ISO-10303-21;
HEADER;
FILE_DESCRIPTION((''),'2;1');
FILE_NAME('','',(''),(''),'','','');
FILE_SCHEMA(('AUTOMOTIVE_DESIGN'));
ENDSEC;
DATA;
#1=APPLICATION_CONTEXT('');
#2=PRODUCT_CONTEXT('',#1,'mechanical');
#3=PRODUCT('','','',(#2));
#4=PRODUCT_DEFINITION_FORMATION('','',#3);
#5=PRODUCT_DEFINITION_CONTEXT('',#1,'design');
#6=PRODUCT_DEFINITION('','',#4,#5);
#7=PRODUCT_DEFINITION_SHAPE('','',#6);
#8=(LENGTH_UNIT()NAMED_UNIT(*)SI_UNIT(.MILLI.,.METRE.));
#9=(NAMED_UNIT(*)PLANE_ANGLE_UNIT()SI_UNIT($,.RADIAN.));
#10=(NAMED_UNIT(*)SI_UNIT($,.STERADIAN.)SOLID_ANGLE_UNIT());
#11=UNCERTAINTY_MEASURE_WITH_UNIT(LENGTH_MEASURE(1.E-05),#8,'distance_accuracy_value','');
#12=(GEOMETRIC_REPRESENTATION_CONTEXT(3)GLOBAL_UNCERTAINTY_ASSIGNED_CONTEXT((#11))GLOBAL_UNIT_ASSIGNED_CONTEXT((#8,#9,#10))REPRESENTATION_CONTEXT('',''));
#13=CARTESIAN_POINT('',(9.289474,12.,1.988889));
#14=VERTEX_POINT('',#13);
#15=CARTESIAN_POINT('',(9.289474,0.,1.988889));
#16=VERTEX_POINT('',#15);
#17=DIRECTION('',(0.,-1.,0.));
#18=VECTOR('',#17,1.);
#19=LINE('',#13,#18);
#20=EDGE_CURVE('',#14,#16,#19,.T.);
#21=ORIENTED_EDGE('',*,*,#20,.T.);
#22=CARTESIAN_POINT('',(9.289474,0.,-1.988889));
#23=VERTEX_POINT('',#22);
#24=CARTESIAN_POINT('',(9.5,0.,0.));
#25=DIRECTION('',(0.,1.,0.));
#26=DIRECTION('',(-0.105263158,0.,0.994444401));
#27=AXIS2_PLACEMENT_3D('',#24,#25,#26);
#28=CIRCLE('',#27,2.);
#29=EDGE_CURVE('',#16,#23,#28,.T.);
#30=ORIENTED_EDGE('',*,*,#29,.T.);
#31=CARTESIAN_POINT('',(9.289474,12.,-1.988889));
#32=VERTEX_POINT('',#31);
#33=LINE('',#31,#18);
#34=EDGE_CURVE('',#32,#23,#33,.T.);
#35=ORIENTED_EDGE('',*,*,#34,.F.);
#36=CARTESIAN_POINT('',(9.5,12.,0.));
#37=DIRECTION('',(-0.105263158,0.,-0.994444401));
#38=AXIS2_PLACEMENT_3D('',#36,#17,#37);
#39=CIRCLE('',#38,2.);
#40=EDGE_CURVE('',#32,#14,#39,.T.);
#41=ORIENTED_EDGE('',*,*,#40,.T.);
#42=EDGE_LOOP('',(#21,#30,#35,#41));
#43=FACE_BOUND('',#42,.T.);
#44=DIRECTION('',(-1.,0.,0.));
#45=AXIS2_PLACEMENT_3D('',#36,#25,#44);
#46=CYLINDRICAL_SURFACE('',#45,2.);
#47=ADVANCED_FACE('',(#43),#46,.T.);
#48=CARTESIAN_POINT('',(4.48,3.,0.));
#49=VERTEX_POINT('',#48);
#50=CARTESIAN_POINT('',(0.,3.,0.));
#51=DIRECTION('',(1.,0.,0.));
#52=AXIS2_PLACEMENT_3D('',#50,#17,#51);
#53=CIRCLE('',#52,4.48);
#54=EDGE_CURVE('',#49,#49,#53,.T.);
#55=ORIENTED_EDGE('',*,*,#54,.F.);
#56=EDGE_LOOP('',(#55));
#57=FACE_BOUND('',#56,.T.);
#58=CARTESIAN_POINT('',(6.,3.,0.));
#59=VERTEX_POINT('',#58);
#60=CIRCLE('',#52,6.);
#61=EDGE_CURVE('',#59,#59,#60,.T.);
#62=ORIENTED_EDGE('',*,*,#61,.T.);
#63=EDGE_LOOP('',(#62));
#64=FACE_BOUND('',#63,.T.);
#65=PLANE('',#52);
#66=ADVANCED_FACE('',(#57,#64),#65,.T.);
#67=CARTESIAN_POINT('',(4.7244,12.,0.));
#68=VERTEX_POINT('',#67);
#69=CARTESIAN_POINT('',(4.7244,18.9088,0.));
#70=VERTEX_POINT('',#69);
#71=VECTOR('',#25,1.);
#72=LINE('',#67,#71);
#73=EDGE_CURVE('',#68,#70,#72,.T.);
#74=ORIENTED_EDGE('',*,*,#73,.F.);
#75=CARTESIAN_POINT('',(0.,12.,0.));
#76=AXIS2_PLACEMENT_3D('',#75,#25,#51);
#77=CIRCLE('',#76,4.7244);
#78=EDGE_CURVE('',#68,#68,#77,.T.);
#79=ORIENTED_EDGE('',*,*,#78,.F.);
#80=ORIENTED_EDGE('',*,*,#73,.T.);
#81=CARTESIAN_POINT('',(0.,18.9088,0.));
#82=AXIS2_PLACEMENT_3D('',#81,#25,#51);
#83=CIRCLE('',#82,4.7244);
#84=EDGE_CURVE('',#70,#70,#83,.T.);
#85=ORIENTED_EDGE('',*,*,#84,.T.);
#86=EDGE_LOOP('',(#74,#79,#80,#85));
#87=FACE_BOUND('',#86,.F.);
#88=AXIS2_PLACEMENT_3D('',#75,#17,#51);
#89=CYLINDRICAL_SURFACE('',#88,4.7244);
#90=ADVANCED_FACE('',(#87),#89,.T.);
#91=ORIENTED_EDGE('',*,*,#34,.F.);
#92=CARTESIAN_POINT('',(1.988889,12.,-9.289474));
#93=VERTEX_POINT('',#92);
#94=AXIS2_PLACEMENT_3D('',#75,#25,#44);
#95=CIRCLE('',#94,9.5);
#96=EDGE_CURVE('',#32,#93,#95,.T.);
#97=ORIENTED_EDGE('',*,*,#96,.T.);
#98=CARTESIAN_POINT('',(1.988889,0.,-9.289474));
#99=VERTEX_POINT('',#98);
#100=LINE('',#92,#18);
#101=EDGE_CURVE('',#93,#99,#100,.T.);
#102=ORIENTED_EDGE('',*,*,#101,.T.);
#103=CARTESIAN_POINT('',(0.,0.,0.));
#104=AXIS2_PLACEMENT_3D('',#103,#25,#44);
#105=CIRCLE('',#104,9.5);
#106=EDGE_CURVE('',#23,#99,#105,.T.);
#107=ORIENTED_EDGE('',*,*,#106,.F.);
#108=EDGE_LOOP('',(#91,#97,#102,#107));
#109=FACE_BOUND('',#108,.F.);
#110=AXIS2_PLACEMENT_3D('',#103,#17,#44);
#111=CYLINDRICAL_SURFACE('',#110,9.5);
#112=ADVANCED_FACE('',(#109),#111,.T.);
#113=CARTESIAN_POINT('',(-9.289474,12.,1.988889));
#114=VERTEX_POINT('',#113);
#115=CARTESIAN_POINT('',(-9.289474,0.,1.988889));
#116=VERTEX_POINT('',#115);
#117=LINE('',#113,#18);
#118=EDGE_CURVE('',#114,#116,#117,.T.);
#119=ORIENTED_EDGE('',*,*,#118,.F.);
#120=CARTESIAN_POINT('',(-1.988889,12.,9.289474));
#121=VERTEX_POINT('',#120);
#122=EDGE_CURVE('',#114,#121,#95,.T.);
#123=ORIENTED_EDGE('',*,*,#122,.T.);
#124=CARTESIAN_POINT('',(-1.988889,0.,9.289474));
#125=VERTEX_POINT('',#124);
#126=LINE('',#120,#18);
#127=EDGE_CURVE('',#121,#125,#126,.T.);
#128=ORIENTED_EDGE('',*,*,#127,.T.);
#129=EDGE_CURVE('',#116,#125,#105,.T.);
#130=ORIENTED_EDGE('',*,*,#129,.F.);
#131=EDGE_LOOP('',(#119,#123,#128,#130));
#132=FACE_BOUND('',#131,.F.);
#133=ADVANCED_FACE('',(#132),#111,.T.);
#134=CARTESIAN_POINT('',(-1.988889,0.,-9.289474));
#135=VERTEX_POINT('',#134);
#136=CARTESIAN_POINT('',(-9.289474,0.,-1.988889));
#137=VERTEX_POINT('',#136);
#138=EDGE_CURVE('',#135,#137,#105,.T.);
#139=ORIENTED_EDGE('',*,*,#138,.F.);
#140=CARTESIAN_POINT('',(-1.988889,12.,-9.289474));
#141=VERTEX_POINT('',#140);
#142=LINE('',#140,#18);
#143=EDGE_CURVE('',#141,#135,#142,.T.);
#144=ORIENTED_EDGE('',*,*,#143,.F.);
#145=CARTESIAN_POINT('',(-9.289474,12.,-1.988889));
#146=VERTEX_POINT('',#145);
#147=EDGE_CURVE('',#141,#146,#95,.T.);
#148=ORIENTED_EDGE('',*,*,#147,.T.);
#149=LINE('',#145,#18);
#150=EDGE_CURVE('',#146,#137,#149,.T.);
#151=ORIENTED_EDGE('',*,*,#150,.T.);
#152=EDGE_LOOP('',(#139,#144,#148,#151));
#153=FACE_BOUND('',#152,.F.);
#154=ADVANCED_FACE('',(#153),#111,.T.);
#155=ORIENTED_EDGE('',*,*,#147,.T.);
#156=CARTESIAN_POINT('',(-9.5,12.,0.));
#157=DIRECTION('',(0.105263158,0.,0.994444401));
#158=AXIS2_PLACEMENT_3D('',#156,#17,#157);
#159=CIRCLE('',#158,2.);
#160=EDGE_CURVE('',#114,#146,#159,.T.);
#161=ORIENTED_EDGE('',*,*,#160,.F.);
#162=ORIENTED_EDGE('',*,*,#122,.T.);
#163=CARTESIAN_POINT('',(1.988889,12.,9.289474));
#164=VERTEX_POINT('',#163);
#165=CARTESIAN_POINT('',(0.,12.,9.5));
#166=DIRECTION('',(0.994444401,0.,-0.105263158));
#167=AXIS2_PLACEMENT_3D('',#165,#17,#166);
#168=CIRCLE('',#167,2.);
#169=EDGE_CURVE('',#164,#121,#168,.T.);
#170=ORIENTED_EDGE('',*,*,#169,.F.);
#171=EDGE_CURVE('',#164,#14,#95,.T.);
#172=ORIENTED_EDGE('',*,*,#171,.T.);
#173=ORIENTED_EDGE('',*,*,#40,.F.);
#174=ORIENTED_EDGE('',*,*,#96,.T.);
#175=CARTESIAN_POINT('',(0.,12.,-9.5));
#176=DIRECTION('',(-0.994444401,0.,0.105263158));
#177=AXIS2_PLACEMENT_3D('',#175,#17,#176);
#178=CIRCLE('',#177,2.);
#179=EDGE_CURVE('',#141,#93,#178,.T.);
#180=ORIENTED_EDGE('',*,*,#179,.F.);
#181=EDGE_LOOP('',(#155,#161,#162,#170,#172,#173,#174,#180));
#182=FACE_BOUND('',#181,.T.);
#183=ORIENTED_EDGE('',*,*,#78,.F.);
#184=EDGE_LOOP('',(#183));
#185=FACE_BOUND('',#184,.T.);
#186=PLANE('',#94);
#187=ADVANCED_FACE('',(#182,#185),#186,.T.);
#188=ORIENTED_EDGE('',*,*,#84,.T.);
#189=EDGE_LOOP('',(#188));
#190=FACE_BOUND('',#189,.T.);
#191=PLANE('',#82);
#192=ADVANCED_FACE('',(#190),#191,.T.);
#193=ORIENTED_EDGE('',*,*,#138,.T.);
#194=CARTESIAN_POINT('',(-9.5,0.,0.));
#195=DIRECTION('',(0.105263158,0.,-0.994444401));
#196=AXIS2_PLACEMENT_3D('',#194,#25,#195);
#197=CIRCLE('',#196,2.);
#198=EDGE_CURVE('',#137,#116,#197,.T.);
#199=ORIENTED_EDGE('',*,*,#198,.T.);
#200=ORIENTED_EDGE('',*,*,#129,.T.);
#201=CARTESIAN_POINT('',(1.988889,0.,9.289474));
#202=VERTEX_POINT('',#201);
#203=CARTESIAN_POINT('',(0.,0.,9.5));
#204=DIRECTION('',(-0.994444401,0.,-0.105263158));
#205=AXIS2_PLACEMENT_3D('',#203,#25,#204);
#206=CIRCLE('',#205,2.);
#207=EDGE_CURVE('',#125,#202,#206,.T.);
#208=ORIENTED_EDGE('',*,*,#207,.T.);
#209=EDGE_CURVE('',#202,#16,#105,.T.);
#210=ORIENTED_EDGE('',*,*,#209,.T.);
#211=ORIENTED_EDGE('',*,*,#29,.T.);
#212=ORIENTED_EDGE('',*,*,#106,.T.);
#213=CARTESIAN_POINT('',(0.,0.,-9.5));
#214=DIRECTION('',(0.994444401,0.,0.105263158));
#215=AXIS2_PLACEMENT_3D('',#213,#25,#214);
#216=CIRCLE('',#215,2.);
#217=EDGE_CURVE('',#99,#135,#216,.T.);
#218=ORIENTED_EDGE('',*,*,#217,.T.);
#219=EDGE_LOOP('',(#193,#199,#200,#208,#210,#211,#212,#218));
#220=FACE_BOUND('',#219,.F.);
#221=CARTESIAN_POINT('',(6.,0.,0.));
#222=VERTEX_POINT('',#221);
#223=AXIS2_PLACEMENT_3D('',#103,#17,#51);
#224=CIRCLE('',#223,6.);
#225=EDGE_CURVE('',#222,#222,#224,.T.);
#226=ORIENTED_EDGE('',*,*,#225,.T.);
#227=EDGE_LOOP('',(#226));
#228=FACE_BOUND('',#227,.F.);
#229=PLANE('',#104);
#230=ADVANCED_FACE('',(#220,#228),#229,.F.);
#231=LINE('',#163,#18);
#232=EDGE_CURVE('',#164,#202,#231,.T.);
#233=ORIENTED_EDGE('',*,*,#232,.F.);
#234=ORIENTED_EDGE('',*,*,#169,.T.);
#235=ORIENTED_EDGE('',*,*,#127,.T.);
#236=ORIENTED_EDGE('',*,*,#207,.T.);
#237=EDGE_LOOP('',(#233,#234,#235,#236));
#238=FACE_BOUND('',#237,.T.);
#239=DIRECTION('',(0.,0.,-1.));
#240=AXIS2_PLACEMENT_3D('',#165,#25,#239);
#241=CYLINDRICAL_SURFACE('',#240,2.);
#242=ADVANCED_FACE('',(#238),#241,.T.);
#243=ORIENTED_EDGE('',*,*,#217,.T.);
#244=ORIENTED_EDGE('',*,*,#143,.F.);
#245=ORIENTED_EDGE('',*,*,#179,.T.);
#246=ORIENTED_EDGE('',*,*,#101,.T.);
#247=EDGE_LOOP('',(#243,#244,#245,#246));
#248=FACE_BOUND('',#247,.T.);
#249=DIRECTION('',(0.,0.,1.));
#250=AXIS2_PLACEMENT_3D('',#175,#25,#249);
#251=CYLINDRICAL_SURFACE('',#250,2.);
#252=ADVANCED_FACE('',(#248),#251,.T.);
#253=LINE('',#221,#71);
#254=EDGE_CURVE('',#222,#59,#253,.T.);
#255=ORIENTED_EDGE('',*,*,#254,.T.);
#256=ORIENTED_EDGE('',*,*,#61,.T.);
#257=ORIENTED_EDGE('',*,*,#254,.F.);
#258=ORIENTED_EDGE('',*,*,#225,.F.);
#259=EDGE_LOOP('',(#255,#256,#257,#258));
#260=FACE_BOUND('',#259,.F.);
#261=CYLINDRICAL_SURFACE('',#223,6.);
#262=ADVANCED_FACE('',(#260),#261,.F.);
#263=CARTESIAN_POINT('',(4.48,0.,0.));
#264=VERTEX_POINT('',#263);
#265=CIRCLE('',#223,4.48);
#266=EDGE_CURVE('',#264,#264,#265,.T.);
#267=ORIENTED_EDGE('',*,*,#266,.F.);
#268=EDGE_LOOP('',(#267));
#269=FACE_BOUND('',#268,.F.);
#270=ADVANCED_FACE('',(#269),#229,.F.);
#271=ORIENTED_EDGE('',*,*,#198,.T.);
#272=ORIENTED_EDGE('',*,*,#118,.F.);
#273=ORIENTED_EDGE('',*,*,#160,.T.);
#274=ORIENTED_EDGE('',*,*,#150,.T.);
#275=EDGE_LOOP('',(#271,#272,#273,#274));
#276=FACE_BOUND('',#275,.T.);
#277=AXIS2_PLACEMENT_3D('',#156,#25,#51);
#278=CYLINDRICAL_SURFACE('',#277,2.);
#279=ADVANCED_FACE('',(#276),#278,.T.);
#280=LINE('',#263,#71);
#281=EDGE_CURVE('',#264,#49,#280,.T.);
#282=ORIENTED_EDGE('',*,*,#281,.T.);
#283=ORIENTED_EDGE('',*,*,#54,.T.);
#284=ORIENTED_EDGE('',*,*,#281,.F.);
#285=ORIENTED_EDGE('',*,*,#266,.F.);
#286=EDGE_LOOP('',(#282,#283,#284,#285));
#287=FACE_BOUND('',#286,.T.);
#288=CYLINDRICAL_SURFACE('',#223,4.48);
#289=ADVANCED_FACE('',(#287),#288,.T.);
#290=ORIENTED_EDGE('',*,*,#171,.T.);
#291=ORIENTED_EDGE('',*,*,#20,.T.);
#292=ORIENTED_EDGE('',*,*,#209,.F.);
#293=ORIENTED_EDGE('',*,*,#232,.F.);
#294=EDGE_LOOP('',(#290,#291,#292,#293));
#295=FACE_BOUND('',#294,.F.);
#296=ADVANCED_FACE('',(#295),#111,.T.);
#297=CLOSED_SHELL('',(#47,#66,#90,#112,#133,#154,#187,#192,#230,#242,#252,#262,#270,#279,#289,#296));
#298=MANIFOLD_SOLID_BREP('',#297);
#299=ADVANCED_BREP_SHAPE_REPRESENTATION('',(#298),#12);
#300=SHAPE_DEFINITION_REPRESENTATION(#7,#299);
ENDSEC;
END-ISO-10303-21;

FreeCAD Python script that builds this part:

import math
import FreeCAD as App
import Part
import Sketcher
from FreeCAD import Vector

doc = App.newDocument("Part")
body = doc.addObject("PartDesign::Body", "Body")

# Sketch on XZ plane
sketch1 = body.newObject("Sketcher::SketchObject", "Sketch")
sketch1.AttachmentSupport = (doc.getObject("XZ_Plane"), [""])
sketch1.MapMode = "FlatFace"
sketch1.addGeometry(Part.Circle(Vector(0, 0, 0), Vector(0, 0, 1), 9.5), False)
sketch1.addConstraint(Sketcher.Constraint("Coincident", 0, 3, -1, 1))
sketch1.addConstraint(Sketcher.Constraint("Diameter", 0, 19.0))
pad1 = body.newObject("PartDesign::Pad", "Pad")
pad1.Profile = sketch1
pad1.Length = 12
pad1.Reversed = True

# Sketch on XZ plane
sketch2 = body.newObject("Sketcher::SketchObject", "Sketch001")
sketch2.AttachmentSupport = (doc.getObject("XZ_Plane"), [""])
sketch2.MapMode = "FlatFace"
sketch2.AttachmentOffset = App.Placement(Vector(0, 0, -12), App.Rotation())
sketch2.addGeometry(Part.Circle(Vector(0, 0, 0), Vector(0, 0, 1), 4.7244), False)
sketch2.addConstraint(Sketcher.Constraint("Coincident", 0, 3, -1, 1))
sketch2.addConstraint(Sketcher.Constraint("Diameter", 0, 9.4488))
pad2 = body.newObject("PartDesign::Pad", "Pad001")
pad2.Profile = sketch2
pad2.Length = 6.9088
pad2.Reversed = True

# Sketch on XZ plane
sketch3 = body.newObject("Sketcher::SketchObject", "Sketch002")
sketch3.AttachmentSupport = (doc.getObject("XZ_Plane"), [""])
sketch3.MapMode = "FlatFace"
sketch3.addGeometry(Part.Circle(Vector(0, 0, 0), Vector(0, 0, 1), 6), False)
sketch3.addGeometry(Part.Circle(Vector(0, 0, 0), Vector(0, 0, 1), 4.48), False)
sketch3.addConstraint(Sketcher.Constraint("Coincident", 0, 3, -1, 1))
sketch3.addConstraint(Sketcher.Constraint("Coincident", 1, 3, -1, 1))
sketch3.addConstraint(Sketcher.Constraint("Diameter", 0, 12.0))
sketch3.addConstraint(Sketcher.Constraint("Diameter", 1, 8.96))
pocket1 = body.newObject("PartDesign::Pocket", "Pocket")
pocket1.Profile = sketch3
pocket1.Length = 3

# Sketch on XZ plane
sketch4 = body.newObject("Sketcher::SketchObject", "Sketch003")
sketch4.AttachmentSupport = (doc.getObject("XZ_Plane"), [""])
sketch4.MapMode = "FlatFace"
sketch4.AttachmentOffset = App.Placement(Vector(0, 0, -12), App.Rotation())
sketch4.addGeometry(Part.ArcOfCircle(Part.Circle(Vector(-9.5, 0, 0), Vector(0, 0, 1), 2), math.radians(83.957672), math.radians(276.042328)), False)
sketch4.addGeometry(Part.ArcOfCircle(Part.Circle(Vector(0, 0, 0), Vector(0, 0, 1), 9.5), math.radians(167.915343), math.radians(192.084657)), False)
sketch4.addConstraint(Sketcher.Constraint("Coincident", 0, 1, 1, 1))
sketch4.addConstraint(Sketcher.Constraint("Coincident", 1, 2, 0, 2))
sketch4.addConstraint(Sketcher.Constraint("Coincident", 1, 3, -1, 1))
sketch4.addConstraint(Sketcher.Constraint("PointOnObject", 0, 3, -1))
sketch4.addConstraint(Sketcher.Constraint("Radius", 0, 2.0))
sketch4.addConstraint(Sketcher.Constraint("Radius", 1, 9.5))
sketch4.addConstraint(Sketcher.Constraint("DistanceX", 0, 3, -1, 1, 9.5))
pad3 = body.newObject("PartDesign::Pad", "Pad002")
pad3.Profile = sketch4
pad3.Length = 12
doc.recompute()

polarpattern = body.newObject("PartDesign::PolarPattern", "PolarPattern")
polarpattern.Originals = [pad3]
polarpattern.Axis = (doc.getObject("Y_Axis"), [""])
polarpattern.Angle = 360
polarpattern.Occurrences = 4
body.Tip = polarpattern

doc.recompute()
